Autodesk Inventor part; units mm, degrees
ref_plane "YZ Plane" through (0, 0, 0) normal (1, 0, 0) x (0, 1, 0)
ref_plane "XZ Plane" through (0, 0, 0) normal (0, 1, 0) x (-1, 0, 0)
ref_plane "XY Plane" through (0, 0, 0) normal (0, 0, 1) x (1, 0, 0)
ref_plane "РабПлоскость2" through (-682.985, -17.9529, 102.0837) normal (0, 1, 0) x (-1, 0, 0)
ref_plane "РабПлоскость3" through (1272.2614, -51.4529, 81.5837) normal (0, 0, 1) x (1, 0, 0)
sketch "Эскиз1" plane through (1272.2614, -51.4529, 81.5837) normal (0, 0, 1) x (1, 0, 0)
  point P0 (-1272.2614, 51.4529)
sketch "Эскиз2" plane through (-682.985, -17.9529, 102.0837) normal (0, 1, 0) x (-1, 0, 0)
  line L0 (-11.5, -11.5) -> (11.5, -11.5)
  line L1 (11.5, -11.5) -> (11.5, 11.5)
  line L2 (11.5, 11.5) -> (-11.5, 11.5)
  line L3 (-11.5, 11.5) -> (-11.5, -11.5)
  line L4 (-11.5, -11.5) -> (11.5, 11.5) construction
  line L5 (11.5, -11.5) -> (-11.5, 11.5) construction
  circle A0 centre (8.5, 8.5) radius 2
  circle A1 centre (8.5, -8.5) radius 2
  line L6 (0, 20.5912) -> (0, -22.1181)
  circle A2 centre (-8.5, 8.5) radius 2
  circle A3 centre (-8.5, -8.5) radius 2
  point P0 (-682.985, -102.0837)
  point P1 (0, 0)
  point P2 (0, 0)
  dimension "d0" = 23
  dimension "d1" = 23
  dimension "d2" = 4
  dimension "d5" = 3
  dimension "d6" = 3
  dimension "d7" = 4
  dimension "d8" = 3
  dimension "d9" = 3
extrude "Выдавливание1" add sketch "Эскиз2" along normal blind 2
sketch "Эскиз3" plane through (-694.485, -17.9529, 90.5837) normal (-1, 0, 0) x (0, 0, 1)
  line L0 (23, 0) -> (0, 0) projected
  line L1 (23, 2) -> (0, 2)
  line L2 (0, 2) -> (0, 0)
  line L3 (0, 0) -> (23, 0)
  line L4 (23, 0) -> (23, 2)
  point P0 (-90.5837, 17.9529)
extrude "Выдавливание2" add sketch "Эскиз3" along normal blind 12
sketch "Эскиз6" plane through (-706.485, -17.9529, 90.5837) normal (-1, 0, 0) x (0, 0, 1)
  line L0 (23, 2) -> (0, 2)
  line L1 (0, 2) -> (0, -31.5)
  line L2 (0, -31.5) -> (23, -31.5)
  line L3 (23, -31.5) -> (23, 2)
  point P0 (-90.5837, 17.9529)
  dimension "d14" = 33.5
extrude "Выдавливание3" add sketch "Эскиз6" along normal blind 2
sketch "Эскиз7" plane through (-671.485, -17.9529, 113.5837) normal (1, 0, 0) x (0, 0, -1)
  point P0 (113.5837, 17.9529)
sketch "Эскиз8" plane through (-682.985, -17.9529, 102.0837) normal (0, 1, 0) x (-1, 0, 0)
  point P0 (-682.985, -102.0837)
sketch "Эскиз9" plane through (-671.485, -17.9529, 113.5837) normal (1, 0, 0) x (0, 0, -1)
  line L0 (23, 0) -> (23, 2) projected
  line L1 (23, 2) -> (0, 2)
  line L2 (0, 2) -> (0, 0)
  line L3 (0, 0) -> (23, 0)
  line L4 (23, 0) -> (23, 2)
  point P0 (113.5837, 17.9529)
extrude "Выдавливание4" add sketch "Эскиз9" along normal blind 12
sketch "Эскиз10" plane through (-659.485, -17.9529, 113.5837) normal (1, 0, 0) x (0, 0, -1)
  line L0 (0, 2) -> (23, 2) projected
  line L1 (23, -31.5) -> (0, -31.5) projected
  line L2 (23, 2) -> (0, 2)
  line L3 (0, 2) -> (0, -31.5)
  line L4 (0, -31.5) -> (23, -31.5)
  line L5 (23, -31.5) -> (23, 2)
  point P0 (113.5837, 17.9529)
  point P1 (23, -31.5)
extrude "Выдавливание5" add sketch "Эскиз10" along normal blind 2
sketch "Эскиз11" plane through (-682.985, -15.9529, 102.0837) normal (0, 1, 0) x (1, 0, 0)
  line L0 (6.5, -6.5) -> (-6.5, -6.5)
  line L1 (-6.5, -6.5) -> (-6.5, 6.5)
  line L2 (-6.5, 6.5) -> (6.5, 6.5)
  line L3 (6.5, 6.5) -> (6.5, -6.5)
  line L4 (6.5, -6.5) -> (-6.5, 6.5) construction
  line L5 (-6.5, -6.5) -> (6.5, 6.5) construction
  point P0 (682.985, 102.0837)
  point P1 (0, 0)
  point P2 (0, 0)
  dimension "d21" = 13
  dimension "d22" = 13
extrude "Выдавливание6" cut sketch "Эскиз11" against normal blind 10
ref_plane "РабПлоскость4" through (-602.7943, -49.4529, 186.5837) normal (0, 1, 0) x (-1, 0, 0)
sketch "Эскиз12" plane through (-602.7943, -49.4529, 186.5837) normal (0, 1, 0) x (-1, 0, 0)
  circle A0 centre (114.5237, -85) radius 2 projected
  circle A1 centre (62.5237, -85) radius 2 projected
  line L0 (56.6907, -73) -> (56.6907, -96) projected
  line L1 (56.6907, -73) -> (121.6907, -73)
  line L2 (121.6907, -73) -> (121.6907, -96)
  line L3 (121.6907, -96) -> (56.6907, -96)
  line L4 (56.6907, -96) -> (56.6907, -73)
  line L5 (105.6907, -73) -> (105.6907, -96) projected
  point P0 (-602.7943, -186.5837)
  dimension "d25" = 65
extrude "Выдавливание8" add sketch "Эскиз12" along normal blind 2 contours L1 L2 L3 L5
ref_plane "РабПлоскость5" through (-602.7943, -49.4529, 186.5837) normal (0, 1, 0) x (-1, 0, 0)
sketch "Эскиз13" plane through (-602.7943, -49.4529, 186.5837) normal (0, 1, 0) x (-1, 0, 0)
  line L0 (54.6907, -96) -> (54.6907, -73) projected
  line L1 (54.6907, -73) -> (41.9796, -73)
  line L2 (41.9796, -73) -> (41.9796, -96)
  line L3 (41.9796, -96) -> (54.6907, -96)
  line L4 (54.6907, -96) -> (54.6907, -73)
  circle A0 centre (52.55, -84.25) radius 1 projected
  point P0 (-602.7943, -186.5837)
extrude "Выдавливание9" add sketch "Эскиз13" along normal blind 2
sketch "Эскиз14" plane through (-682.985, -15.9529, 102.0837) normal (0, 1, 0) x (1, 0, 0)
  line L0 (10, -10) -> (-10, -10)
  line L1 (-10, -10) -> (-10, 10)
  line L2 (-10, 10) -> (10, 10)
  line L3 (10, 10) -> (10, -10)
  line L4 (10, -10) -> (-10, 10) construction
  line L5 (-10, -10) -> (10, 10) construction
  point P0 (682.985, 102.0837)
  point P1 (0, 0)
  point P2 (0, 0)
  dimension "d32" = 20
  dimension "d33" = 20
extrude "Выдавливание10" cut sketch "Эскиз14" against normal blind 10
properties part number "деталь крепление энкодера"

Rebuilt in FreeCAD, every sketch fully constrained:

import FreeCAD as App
import Part
import Sketcher

V = App.Vector


def add_polygon(sketch, points):
    """Adds a closed chain of lines whose ends are joined by coincident constraints."""
    first, n = sketch.GeometryCount, len(points)
    for a, b in zip(points, points[1:] + points[:1]):
        sketch.addGeometry(Part.LineSegment(App.Vector(*a, 0), App.Vector(*b, 0)), False)
    for i in range(n):
        sketch.addConstraint(Sketcher.Constraint("Coincident", first + i, 2, first + (i + 1) % n, 1))

doc = App.newDocument("Part")
body = doc.addObject("PartDesign::Body", "Body")

sketch1 = doc.addObject("Sketcher::SketchObject", "Sketch")
body.addObject(sketch1)
sketch1.AttachmentSupport = (doc.XZ_Plane, [""])
sketch1.MapMode = "FlatFace"
sketch1.AttachmentOffset = App.Placement(V(0, 0, 17.9529), App.Rotation())
add_polygon(sketch1, [(-671.5, 113.6), (-671.5, 90.6), (-694.5, 90.6), (-694.5, 113.6)])
sketch1.addGeometry(Part.Circle(V(-674.5, 93.6, 0), V(0, 0, 1), 2), False)
sketch1.addGeometry(Part.Circle(V(-674.5, 110.6, 0), V(0, 0, 1), 2), False)
sketch1.addGeometry(Part.Circle(V(-691.5, 110.6, 0), V(0, 0, 1), 2), False)
sketch1.addGeometry(Part.Circle(V(-691.5, 93.6, 0), V(0, 0, 1), 2), False)
sketch1.addConstraint(Sketcher.Constraint("Vertical", 0))
sketch1.addConstraint(Sketcher.Constraint("Horizontal", 1))
sketch1.addConstraint(Sketcher.Constraint("Vertical", 2))
sketch1.addConstraint(Sketcher.Constraint("Horizontal", 3))
sketch1.addConstraint(Sketcher.Constraint("Equal", 4, 5))
sketch1.addConstraint(Sketcher.Constraint("Equal", 5, 6))
sketch1.addConstraint(Sketcher.Constraint("Equal", 6, 7))
sketch1.addConstraint(Sketcher.Constraint("Horizontal", 5, 3, 6, 3))
sketch1.addConstraint(Sketcher.Constraint("Horizontal", 4, 3, 7, 3))
sketch1.addConstraint(Sketcher.Constraint("Vertical", 4, 3, 5, 3))
sketch1.addConstraint(Sketcher.Constraint("Vertical", 6, 3, 7, 3))
sketch1.addConstraint(Sketcher.Constraint("Equal", 3, 0))
sketch1.addConstraint(Sketcher.Constraint("Diameter", 4, 4.0))
sketch1.addConstraint(Sketcher.Constraint("DistanceX", 1, 2, 1, 1, 23.0))
sketch1.addConstraint(Sketcher.Constraint("DistanceX", 4, 3, 0, 2, 3.0))
sketch1.addConstraint(Sketcher.Constraint("DistanceY", 0, 2, 4, 3, 3.0))
sketch1.addConstraint(Sketcher.Constraint("DistanceX", 1, 2, 7, 3, 3.0))
sketch1.addConstraint(Sketcher.Constraint("DistanceY", 6, 3, 2, 2, 3.0))
sketch1.addConstraint(Sketcher.Constraint("DistanceX", 4, 3, -1, 1, 674.485))
sketch1.addConstraint(Sketcher.Constraint("DistanceY", -1, 1, 4, 3, 93.5837))
pad1 = doc.addObject("PartDesign::Pad", "Pad")
body.addObject(pad1)
pad1.Profile = sketch1
pad1.Length = 2
pad1.Reversed = True

sketch2 = doc.addObject("Sketcher::SketchObject", "Sketch001")
body.addObject(sketch2)
sketch2.AttachmentSupport = (doc.YZ_Plane, [""])
sketch2.MapMode = "FlatFace"
sketch2.AttachmentOffset = App.Placement(V(0, 0, -694.485), App.Rotation())
add_polygon(sketch2, [(-18, 90.6), (-18, 113.6), (-16, 113.6), (-16, 90.6)])
sketch2.addConstraint(Sketcher.Constraint("Vertical", 0))
sketch2.addConstraint(Sketcher.Constraint("Horizontal", 1))
sketch2.addConstraint(Sketcher.Constraint("Vertical", 2))
sketch2.addConstraint(Sketcher.Constraint("Horizontal", 3))
sketch2.addConstraint(Sketcher.Constraint("DistanceX", 1, 1, 1, 2, 2.0))
sketch2.addConstraint(Sketcher.Constraint("DistanceY", 0, 1, 0, 2, 23.0))
sketch2.addConstraint(Sketcher.Constraint("DistanceX", 0, 2, -1, 1, 17.953))
sketch2.addConstraint(Sketcher.Constraint("DistanceY", -1, 1, 0, 2, 113.5837))
pad2 = doc.addObject("PartDesign::Pad", "Pad001")
body.addObject(pad2)
pad2.Profile = sketch2
pad2.Length = 12
pad2.Reversed = True

sketch3 = doc.addObject("Sketcher::SketchObject", "Sketch002")
body.addObject(sketch3)
sketch3.AttachmentSupport = (doc.YZ_Plane, [""])
sketch3.MapMode = "FlatFace"
sketch3.AttachmentOffset = App.Placement(V(0, 0, -706.485), App.Rotation())
add_polygon(sketch3, [(-49, 114), (-16, 114), (-16, 91), (-49, 91)])
sketch3.addConstraint(Sketcher.Constraint("Horizontal", 0))
sketch3.addConstraint(Sketcher.Constraint("Vertical", 1))
sketch3.addConstraint(Sketcher.Constraint("Horizontal", 2))
sketch3.addConstraint(Sketcher.Constraint("Vertical", 3))
sketch3.addConstraint(Sketcher.Constraint("DistanceX", 0, 1, 0, 2, 33.5))
sketch3.addConstraint(Sketcher.Constraint("DistanceY", 1, 2, 1, 1, 23.0))
sketch3.addConstraint(Sketcher.Constraint("DistanceX", 0, 2, -1, 1, 15.953))
sketch3.addConstraint(Sketcher.Constraint("DistanceY", -1, 1, 0, 2, 113.5837))
pad3 = doc.addObject("PartDesign::Pad", "Pad002")
body.addObject(pad3)
pad3.Profile = sketch3
pad3.Length = 2
pad3.Reversed = True

sketch4 = doc.addObject("Sketcher::SketchObject", "Sketch003")
body.addObject(sketch4)
sketch4.AttachmentSupport = (doc.YZ_Plane, [""])
sketch4.MapMode = "FlatFace"
sketch4.AttachmentOffset = App.Placement(V(0, 0, -671.485), App.Rotation())
add_polygon(sketch4, [(-18, 113.6), (-18, 90.6), (-16, 90.6), (-16, 113.6)])
sketch4.addConstraint(Sketcher.Constraint("Vertical", 0))
sketch4.addConstraint(Sketcher.Constraint("Horizontal", 1))
sketch4.addConstraint(Sketcher.Constraint("Vertical", 2))
sketch4.addConstraint(Sketcher.Constraint("Horizontal", 3))
sketch4.addConstraint(Sketcher.Constraint("DistanceX", 1, 1, 1, 2, 2.0))
sketch4.addConstraint(Sketcher.Constraint("DistanceY", 0, 2, 0, 1, 23.0))
sketch4.addConstraint(Sketcher.Constraint("DistanceX", 0, 2, -1, 1, 17.953))
sketch4.addConstraint(Sketcher.Constraint("DistanceY", -1, 1, 0, 2, 90.5837))
pad4 = doc.addObject("PartDesign::Pad", "Pad003")
body.addObject(pad4)
pad4.Profile = sketch4
pad4.Length = 12

sketch5 = doc.addObject("Sketcher::SketchObject", "Sketch004")
body.addObject(sketch5)
sketch5.AttachmentSupport = (doc.YZ_Plane, [""])
sketch5.MapMode = "FlatFace"
sketch5.AttachmentOffset = App.Placement(V(0, 0, -659.485), App.Rotation())
add_polygon(sketch5, [(-16, 91), (-16, 114), (-49, 114), (-49, 91)])
sketch5.addConstraint(Sketcher.Constraint("Vertical", 0))
sketch5.addConstraint(Sketcher.Constraint("Horizontal", 1))
sketch5.addConstraint(Sketcher.Constraint("Vertical", 2))
sketch5.addConstraint(Sketcher.Constraint("Horizontal", 3))
sketch5.addConstraint(Sketcher.Constraint("DistanceY", 0, 1, 0, 2, 23.0))
sketch5.addConstraint(Sketcher.Constraint("DistanceX", 1, 2, 1, 1, 33.5))
sketch5.addConstraint(Sketcher.Constraint("DistanceX", 0, 2, -1, 1, 15.953))
sketch5.addConstraint(Sketcher.Constraint("DistanceY", -1, 1, 0, 2, 113.5837))
pad5 = doc.addObject("PartDesign::Pad", "Pad004")
body.addObject(pad5)
pad5.Profile = sketch5
pad5.Length = 2

sketch6 = doc.addObject("Sketcher::SketchObject", "Sketch005")
body.addObject(sketch6)
sketch6.AttachmentSupport = (doc.XZ_Plane, [""])
sketch6.MapMode = "FlatFace"
sketch6.AttachmentOffset = App.Placement(V(0, 0, 15.9529), App.Rotation())
add_polygon(sketch6, [(-689, 109), (-676, 109), (-676, 96), (-689, 96)])
sketch6.addConstraint(Sketcher.Constraint("Horizontal", 0))
sketch6.addConstraint(Sketcher.Constraint("Vertical", 1))
sketch6.addConstraint(Sketcher.Constraint("Horizontal", 2))
sketch6.addConstraint(Sketcher.Constraint("Vertical", 3))
sketch6.addConstraint(Sketcher.Constraint("Equal", 2, 1))
sketch6.addConstraint(Sketcher.Constraint("DistanceX", 0, 1, 0, 2, 13.0))
sketch6.addConstraint(Sketcher.Constraint("DistanceX", 0, 2, -1, 1, 676.485))
sketch6.addConstraint(Sketcher.Constraint("DistanceY", -1, 1, 0, 2, 108.5837))
pocket1 = doc.addObject("PartDesign::Pocket", "Pocket")
body.addObject(pocket1)
pocket1.Profile = sketch6
pocket1.Length = 10
pocket1.Reversed = True

sketch7 = doc.addObject("Sketcher::SketchObject", "Sketch006")
body.addObject(sketch7)
sketch7.AttachmentSupport = (doc.XZ_Plane, [""])
sketch7.MapMode = "FlatFace"
sketch7.AttachmentOffset = App.Placement(V(0, 0, 49.4529), App.Rotation())
add_polygon(sketch7, [(-724.5, 113.6), (-708.5, 113.6), (-708.5, 90.6), (-724.5, 90.6)])
sketch7.addGeometry(Part.Circle(V(-717.3, 101.6, 0), V(0, 0, 1), 2), False)
sketch7.addConstraint(Sketcher.Constraint("Horizontal", 0))
sketch7.addConstraint(Sketcher.Constraint("Vertical", 1))
sketch7.addConstraint(Sketcher.Constraint("Horizontal", 2))
sketch7.addConstraint(Sketcher.Constraint("Vertical", 3))
sketch7.addConstraint(Sketcher.Constraint("Diameter", 4, 4.0))
sketch7.addConstraint(Sketcher.Constraint("DistanceX", 0, 1, 0, 2, 16.0))
sketch7.addConstraint(Sketcher.Constraint("DistanceY", 1, 2, 1, 1, 23.0))
sketch7.addConstraint(Sketcher.Constraint("DistanceY", 4, 3, 0, 2, 12.0))
sketch7.addConstraint(Sketcher.Constraint("DistanceX", 4, 3, -1, 1, 717.318))
sketch7.addConstraint(Sketcher.Constraint("DistanceX", 0, 2, -1, 1, 708.485))
sketch7.addConstraint(Sketcher.Constraint("DistanceY", -1, 1, 4, 3, 101.5837))
pad6 = doc.addObject("PartDesign::Pad", "Pad005")
body.addObject(pad6)
pad6.Profile = sketch7
pad6.Length = 2
pad6.Reversed = True

sketch8 = doc.addObject("Sketcher::SketchObject", "Sketch007")
body.addObject(sketch8)
sketch8.AttachmentSupport = (doc.XZ_Plane, [""])
sketch8.MapMode = "FlatFace"
sketch8.AttachmentOffset = App.Placement(V(0, 0, 49.4529), App.Rotation())
add_polygon(sketch8, [(-644.8, 90.6), (-657.5, 90.6), (-657.5, 113.6), (-644.8, 113.6)])
sketch8.addGeometry(Part.Circle(V(-655.3, 102.3, 0), V(0, 0, 1), 1), False)
sketch8.addConstraint(Sketcher.Constraint("Horizontal", 0))
sketch8.addConstraint(Sketcher.Constraint("Vertical", 1))
sketch8.addConstraint(Sketcher.Constraint("Horizontal", 2))
sketch8.addConstraint(Sketcher.Constraint("Vertical", 3))
sketch8.addConstraint(Sketcher.Constraint("Diameter", 4, 2.0))
sketch8.addConstraint(Sketcher.Constraint("DistanceY", 1, 1, 1, 2, 23.0))
sketch8.addConstraint(Sketcher.Constraint("DistanceX", 0, 2, 0, 1, 12.711))
sketch8.addConstraint(Sketcher.Constraint("DistanceY", 0, 2, 4, 3, 11.75))
sketch8.addConstraint(Sketcher.Constraint("DistanceX", 0, 2, -1, 1, 657.485))
sketch8.addConstraint(Sketcher.Constraint("DistanceX", 4, 3, -1, 1, 655.3443))
sketch8.addConstraint(Sketcher.Constraint("DistanceY", -1, 1, 4, 3, 102.3337))
pad7 = doc.addObject("PartDesign::Pad", "Pad006")
body.addObject(pad7)
pad7.Profile = sketch8
pad7.Length = 2
pad7.Reversed = True

sketch9 = doc.addObject("Sketcher::SketchObject", "Sketch008")
body.addObject(sketch9)
sketch9.AttachmentSupport = (doc.XZ_Plane, [""])
sketch9.MapMode = "FlatFace"
sketch9.AttachmentOffset = App.Placement(V(0, 0, 15.9529), App.Rotation())
add_polygon(sketch9, [(-693, 112), (-673, 112), (-673, 92), (-693, 92)])
sketch9.addConstraint(Sketcher.Constraint("Horizontal", 0))
sketch9.addConstraint(Sketcher.Constraint("Vertical", 1))
sketch9.addConstraint(Sketcher.Constraint("Horizontal", 2))
sketch9.addConstraint(Sketcher.Constraint("Vertical", 3))
sketch9.addConstraint(Sketcher.Constraint("Equal", 2, 1))
sketch9.addConstraint(Sketcher.Constraint("DistanceX", 0, 1, 0, 2, 20.0))
sketch9.addConstraint(Sketcher.Constraint("DistanceX", 0, 2, -1, 1, 672.985))
sketch9.addConstraint(Sketcher.Constraint("DistanceY", -1, 1, 0, 2, 112.0837))
pocket2 = doc.addObject("PartDesign::Pocket", "Pocket001")
body.addObject(pocket2)
pocket2.Profile = sketch9
pocket2.Length = 10
pocket2.Reversed = True

doc.recompute()
